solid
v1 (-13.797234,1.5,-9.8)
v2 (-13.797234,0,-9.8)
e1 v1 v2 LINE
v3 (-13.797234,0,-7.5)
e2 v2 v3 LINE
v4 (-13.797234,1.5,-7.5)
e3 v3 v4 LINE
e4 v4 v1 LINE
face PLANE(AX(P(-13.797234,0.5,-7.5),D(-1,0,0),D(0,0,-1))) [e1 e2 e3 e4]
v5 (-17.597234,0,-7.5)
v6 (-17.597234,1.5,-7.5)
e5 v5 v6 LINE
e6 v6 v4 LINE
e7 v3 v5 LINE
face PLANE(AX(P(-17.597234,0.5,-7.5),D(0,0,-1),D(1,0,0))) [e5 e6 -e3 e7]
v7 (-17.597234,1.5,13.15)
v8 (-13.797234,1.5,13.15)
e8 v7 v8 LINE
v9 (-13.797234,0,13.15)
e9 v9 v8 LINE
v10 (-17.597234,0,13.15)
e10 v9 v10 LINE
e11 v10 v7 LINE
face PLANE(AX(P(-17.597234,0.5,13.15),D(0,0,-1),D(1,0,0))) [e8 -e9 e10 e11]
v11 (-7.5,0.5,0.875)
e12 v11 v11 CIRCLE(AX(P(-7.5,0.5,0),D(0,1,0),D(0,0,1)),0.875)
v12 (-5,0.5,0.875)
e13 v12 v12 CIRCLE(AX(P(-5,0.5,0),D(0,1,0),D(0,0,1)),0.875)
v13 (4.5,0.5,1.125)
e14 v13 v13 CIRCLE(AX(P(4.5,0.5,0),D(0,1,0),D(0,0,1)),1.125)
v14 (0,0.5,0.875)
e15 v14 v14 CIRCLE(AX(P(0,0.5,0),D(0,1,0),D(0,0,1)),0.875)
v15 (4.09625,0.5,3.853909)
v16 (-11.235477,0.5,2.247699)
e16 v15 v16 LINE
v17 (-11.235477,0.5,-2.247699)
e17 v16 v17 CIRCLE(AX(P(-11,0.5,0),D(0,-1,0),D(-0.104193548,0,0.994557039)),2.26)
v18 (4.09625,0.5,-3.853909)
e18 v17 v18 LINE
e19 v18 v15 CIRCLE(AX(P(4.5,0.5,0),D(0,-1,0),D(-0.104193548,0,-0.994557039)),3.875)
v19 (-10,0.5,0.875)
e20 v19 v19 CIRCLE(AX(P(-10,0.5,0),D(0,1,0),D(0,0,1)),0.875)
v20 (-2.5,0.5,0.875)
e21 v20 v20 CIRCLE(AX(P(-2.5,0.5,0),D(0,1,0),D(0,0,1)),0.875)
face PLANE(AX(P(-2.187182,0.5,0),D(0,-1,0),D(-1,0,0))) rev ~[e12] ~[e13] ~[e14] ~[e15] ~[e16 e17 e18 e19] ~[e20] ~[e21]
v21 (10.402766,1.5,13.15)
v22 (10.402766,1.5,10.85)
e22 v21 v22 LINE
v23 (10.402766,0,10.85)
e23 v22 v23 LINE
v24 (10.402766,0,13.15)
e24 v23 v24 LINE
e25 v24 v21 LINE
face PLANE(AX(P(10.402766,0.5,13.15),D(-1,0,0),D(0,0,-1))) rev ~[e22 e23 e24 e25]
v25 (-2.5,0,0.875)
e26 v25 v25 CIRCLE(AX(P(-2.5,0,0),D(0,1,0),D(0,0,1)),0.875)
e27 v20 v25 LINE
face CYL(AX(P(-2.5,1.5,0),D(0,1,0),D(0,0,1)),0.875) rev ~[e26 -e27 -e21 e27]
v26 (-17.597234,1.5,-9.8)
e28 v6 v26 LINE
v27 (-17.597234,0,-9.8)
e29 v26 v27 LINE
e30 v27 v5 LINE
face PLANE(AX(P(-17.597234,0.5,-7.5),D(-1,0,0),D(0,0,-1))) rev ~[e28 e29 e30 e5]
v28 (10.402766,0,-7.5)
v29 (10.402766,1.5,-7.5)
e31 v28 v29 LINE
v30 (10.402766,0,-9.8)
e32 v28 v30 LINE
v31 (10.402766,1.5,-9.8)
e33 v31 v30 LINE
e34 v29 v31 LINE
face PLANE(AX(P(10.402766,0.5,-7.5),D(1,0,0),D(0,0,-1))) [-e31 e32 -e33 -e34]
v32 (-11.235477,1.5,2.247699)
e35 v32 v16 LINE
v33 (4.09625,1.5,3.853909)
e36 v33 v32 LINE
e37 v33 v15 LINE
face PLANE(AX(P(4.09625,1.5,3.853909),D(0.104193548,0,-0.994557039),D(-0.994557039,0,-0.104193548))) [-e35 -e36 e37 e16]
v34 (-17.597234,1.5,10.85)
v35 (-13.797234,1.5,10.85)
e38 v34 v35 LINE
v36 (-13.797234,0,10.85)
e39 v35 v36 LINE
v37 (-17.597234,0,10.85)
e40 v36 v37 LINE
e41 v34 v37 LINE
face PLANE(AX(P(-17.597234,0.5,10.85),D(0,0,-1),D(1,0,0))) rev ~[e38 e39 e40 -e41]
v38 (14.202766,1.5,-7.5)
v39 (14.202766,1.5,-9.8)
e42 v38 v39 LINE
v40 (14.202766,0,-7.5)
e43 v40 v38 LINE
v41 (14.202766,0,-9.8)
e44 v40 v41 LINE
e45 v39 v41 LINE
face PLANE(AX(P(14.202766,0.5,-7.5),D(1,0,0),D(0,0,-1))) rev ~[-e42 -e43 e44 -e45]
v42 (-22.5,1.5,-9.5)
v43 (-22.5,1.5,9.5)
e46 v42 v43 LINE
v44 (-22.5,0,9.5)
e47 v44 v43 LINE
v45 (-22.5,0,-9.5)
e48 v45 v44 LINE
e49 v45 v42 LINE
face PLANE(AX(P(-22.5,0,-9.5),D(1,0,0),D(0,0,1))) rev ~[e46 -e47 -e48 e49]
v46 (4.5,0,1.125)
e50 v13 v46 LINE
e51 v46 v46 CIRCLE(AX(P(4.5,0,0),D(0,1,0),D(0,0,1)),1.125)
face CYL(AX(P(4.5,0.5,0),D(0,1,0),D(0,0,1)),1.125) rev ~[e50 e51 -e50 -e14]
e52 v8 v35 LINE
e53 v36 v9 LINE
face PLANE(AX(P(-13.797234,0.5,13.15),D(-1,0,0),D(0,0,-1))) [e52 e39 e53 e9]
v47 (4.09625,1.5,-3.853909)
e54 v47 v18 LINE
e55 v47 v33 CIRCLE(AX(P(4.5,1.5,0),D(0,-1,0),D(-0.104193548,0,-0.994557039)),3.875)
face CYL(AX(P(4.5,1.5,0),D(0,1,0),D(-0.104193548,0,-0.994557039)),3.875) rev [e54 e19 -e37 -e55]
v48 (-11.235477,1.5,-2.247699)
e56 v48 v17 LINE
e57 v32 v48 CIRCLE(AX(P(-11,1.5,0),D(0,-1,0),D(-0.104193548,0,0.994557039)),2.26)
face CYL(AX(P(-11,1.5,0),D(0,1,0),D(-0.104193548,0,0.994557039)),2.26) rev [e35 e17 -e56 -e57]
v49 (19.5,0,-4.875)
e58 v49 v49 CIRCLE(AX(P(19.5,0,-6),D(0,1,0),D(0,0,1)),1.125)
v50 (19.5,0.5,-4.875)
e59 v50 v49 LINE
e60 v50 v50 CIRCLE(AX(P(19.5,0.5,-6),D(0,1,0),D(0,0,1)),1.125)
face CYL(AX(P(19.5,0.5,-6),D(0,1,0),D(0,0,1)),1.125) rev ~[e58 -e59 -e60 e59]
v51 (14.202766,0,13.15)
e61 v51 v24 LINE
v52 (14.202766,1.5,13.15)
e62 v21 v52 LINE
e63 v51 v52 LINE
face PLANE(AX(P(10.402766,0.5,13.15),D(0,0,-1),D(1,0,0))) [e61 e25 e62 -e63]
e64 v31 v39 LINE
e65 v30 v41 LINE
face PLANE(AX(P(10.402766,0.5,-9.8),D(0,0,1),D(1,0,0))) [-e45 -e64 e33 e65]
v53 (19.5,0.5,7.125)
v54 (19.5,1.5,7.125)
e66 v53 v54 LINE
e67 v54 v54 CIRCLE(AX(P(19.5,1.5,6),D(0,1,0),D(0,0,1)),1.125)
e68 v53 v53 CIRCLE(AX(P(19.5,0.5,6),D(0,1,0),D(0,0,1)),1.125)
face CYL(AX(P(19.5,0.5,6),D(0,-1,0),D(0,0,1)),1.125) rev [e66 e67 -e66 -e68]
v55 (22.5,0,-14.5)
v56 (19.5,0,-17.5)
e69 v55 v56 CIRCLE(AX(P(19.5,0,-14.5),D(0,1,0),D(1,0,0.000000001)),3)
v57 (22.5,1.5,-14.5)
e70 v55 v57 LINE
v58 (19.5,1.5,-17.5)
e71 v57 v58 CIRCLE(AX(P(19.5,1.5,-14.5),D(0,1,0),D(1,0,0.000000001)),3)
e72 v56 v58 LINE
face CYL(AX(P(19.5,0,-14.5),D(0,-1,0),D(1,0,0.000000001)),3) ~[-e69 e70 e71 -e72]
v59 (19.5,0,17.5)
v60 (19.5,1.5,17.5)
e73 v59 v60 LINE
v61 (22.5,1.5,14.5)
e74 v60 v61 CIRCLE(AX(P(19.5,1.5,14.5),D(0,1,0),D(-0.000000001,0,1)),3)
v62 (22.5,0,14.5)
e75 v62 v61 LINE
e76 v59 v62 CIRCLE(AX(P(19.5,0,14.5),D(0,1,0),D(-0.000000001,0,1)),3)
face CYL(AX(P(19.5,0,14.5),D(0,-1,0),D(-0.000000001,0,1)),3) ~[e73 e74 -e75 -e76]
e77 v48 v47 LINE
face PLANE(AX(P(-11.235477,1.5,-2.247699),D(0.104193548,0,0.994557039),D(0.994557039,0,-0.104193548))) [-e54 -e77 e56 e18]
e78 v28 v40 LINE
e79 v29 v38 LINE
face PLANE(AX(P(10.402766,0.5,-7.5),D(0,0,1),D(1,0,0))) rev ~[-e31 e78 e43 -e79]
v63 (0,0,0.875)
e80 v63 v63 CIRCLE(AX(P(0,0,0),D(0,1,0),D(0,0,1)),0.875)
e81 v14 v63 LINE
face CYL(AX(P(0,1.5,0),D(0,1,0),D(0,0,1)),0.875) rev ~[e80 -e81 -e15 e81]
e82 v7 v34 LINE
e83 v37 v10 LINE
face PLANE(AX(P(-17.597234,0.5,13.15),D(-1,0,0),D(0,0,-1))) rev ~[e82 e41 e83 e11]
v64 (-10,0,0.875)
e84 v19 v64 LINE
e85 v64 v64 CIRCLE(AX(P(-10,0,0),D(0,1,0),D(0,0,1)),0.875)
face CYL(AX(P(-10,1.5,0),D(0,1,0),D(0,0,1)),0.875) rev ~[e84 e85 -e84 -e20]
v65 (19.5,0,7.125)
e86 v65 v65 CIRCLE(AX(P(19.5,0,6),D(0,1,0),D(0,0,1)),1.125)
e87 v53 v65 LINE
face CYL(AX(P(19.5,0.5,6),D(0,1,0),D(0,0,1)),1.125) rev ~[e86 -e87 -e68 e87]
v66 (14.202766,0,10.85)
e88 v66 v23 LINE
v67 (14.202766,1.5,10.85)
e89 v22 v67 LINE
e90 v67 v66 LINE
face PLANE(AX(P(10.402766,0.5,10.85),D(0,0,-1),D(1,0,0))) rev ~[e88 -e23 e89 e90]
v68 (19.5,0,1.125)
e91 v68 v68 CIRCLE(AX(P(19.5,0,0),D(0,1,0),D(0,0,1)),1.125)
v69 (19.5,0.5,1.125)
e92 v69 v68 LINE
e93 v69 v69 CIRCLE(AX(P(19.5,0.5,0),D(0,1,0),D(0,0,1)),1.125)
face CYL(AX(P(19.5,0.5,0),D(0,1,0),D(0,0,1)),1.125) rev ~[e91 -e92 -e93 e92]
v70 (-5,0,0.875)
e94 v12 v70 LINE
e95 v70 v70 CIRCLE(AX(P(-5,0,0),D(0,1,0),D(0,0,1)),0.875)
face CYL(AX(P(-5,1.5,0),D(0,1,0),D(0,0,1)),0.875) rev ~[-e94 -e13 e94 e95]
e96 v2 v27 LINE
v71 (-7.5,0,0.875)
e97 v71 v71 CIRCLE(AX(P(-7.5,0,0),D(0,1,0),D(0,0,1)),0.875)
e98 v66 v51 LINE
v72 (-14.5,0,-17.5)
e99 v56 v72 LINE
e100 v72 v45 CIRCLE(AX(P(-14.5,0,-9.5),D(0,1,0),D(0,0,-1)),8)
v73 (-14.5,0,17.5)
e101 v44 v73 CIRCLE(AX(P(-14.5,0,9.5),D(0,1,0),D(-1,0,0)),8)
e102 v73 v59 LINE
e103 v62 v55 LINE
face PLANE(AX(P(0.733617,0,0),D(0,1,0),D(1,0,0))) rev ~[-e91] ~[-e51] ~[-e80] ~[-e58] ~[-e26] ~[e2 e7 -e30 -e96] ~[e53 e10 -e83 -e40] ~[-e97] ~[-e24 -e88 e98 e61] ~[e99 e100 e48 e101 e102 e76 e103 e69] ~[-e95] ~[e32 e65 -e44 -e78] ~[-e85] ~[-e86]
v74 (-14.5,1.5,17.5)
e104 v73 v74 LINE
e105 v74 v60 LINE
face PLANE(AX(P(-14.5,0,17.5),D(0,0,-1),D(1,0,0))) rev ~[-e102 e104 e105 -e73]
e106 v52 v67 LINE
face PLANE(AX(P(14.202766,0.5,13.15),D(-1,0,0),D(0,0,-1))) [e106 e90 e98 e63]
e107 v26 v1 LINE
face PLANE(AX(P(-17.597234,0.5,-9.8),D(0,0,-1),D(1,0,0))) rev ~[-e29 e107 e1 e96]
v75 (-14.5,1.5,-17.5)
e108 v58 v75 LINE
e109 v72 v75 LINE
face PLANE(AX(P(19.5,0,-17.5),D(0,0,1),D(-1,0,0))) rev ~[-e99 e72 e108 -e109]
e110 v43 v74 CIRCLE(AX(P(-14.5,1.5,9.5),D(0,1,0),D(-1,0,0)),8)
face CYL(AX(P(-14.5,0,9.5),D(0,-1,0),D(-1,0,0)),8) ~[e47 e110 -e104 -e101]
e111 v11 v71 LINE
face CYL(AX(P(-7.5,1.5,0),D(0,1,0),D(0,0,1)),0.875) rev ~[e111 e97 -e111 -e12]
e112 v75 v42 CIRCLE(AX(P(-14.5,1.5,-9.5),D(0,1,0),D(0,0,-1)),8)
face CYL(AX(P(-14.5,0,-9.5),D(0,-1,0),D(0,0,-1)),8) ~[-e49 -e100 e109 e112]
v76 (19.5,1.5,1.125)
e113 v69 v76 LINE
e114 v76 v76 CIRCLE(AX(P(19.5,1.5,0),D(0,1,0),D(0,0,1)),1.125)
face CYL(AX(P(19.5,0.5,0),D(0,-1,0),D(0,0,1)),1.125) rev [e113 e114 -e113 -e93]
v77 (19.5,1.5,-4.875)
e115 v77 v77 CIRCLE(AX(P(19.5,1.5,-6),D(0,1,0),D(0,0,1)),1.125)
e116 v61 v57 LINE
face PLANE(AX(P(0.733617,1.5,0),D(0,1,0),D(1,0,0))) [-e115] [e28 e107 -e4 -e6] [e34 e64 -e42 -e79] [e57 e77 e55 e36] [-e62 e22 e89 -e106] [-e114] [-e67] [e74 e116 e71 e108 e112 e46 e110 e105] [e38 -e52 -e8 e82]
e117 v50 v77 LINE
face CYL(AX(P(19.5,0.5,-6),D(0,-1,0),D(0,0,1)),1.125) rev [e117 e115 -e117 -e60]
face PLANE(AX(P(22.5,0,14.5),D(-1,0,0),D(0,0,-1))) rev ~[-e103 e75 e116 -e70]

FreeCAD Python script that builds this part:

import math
import FreeCAD as App
import Part
import Sketcher
Q = App.Units.Quantity


def add_polygon(sketch, points):
    """Adds a closed chain of lines whose ends are joined by coincident constraints."""
    first, n = sketch.GeometryCount, len(points)
    for a, b in zip(points, points[1:] + points[:1]):
        sketch.addGeometry(Part.LineSegment(App.Vector(*a, 0), App.Vector(*b, 0)), False)
    for i in range(n):
        sketch.addConstraint(Sketcher.Constraint("Coincident", first + i, 2, first + (i + 1) % n, 1))

doc = App.newDocument("Part")
params = doc.addObject("Spreadsheet::Sheet", "Params")
for row, (alias, value) in enumerate([
    ("sketch1_radius", "3 mm"),
    ("sketch1_radius2", "8 mm"),
    ("sketch1_width", "34 mm"),
    ("sketch1_height", "29 mm"),
    ("pad1_length", "1.5 mm"),
    ("sketch2_radius", "2.26 mm"),
    ("pocket1_length", "1 mm"),
    ("sketch3_diameter", "2.25 mm"),
    ("sketch3_width", "3.8 mm"),
    ("sketch3_height", "2.3 mm"),
    ("pocket2_length", "2 mm"),
    ("sketch4_diameter", "1.75 mm"),
    ("pocket3_length", "10 mm"),
], start=1):
    params.set(f"A{row}", alias)
    params.set(f"B{row}", "=" + value)
    params.setAlias(f"B{row}", alias)

body = doc.addObject("PartDesign::Body", "Body")

# Sketch on XZ plane
sketch1 = body.newObject("Sketcher::SketchObject", "Sketch")
sketch1.AttachmentSupport = (doc.getObject("XZ_Plane"), [""])
sketch1.MapMode = "FlatFace"
sketch1.addGeometry([
    Part.LineSegment(App.Vector(-14.5, 17.5, 0), App.Vector(19.5, 17.5, 0)),  # 0
    Part.ArcOfCircle(Part.Circle(App.Vector(19.5, 14.5, 0), App.Vector(0, 0, 1), 3), math.radians(0), math.radians(90)),  # 1
    Part.LineSegment(App.Vector(22.5, 14.5, 0), App.Vector(22.5, -14.5, 0)),  # 2
    Part.ArcOfCircle(Part.Circle(App.Vector(19.5, -14.5, 0), App.Vector(0, 0, 1), 3), math.radians(-90), math.radians(0)),  # 3
    Part.LineSegment(App.Vector(19.5, -17.5, 0), App.Vector(-14.5, -17.5, 0)),  # 4
    Part.ArcOfCircle(Part.Circle(App.Vector(-14.5, -9.5, 0), App.Vector(0, 0, 1), 8), math.radians(-180), math.radians(-90)),  # 5
    Part.LineSegment(App.Vector(-22.5, -9.5, 0), App.Vector(-22.5, 9.5, 0)),  # 6
    Part.ArcOfCircle(Part.Circle(App.Vector(-14.5, 9.5, 0), App.Vector(0, 0, 1), 8), math.radians(90), math.radians(180)),  # 7
], False)
sketch1.addConstraint([
    Sketcher.Constraint("Tangent", 0, 2, 1, 2),
    Sketcher.Constraint("Tangent", 1, 1, 2, 1),
    Sketcher.Constraint("Tangent", 2, 2, 3, 2),
    Sketcher.Constraint("Tangent", 3, 1, 4, 1),
    Sketcher.Constraint("Tangent", 4, 2, 5, 2),
    Sketcher.Constraint("Tangent", 5, 1, 6, 1),
    Sketcher.Constraint("Tangent", 6, 2, 7, 2),
    Sketcher.Constraint("Tangent", 7, 1, 0, 1),
    Sketcher.Constraint("Horizontal", 0),
    Sketcher.Constraint("Vertical", 2),
    Sketcher.Constraint("Horizontal", 4),
    Sketcher.Constraint("Vertical", 6),
    Sketcher.Constraint("Equal", 1, 3),
    Sketcher.Constraint("Equal", 5, 7),
    Sketcher.Constraint("Radius", 1, Q("3 mm")),
    Sketcher.Constraint("Radius", 5, Q("8 mm")),
    Sketcher.Constraint("DistanceX", 0, 1, 0, 2, Q("34 mm")),
    Sketcher.Constraint("DistanceY", 2, 2, 2, 1, Q("29 mm")),
    Sketcher.Constraint("DistanceX", -1, 1, 1, 3, Q("19.5 mm")),
    Sketcher.Constraint("DistanceY", -1, 1, 1, 3, Q("14.5 mm")),
])
sketch1.setExpression("Constraints[14]", "Params.sketch1_radius")
sketch1.setExpression("Constraints[15]", "Params.sketch1_radius2")
sketch1.setExpression("Constraints[16]", "Params.sketch1_width")
sketch1.setExpression("Constraints[17]", "Params.sketch1_height")
pad1 = body.newObject("PartDesign::Pad", "Pad")
pad1.Profile = sketch1
pad1.setExpression("Length", "Params.pad1_length")
pad1.Reversed = True

# Sketch on XZ plane
sketch2 = body.newObject("Sketcher::SketchObject", "Sketch001")
sketch2.AttachmentSupport = (doc.getObject("XZ_Plane"), [""])
sketch2.MapMode = "FlatFace"
sketch2.AttachmentOffset = App.Placement(App.Vector(0, 0, -1.5), App.Rotation())
sketch2.addGeometry([
    Part.LineSegment(App.Vector(4.09625, -3.853909, 0), App.Vector(-11.235477, -2.247699, 0)),
    Part.ArcOfCircle(Part.Circle(App.Vector(-11, 0, 0), App.Vector(0, 0, 1), 2.26), math.radians(95.980705), math.radians(264.019295)),
    Part.LineSegment(App.Vector(-11.235477, 2.247699, 0), App.Vector(4.09625, 3.853909, 0)),
    Part.ArcOfCircle(Part.Circle(App.Vector(4.5, 0, 0), App.Vector(0, 0, 1), 3.875), math.radians(-95.980705), math.radians(95.980705)),
], False)
sketch2.addConstraint([
    Sketcher.Constraint("Tangent", 0, 2, 1, 2),
    Sketcher.Constraint("Tangent", 1, 1, 2, 1),
    Sketcher.Constraint("Tangent", 2, 2, 3, 2),
    Sketcher.Constraint("Tangent", 3, 1, 0, 1),
    Sketcher.Constraint("Symmetric", 0, 2, 1, 1, -1),
    Sketcher.Constraint("Radius", 1, Q("2.26 mm")),
    Sketcher.Constraint("DistanceX", 1, 3, -1, 1, Q("11 mm")),
    Sketcher.Constraint("Radius", 3, Q("3.875 mm")),
    Sketcher.Constraint("DistanceX", -1, 1, 3, 3, Q("4.5 mm")),
])
sketch2.setExpression("Constraints[5]", "Params.sketch2_radius")
pocket1 = body.newObject("PartDesign::Pocket", "Pocket")
pocket1.Profile = sketch2
pocket1.setExpression("Length", "Params.pocket1_length")
pocket1.Reversed = True

# Sketch on XZ plane
sketch3 = body.newObject("Sketcher::SketchObject", "Sketch002")
sketch3.AttachmentSupport = (doc.getObject("XZ_Plane"), [""])
sketch3.MapMode = "FlatFace"
sketch3.AttachmentOffset = App.Placement(App.Vector(0, 0, -0.5), App.Rotation())
sketch3.addGeometry(Part.Circle(App.Vector(4.5, 0, 0), App.Vector(0, 0, 1), 1.125), False)  # 0
sketch3.addGeometry(Part.Circle(App.Vector(19.5, -6, 0), App.Vector(0, 0, 1), 1.125), False)  # 1
sketch3.addGeometry(Part.Circle(App.Vector(19.5, 6, 0), App.Vector(0, 0, 1), 1.125), False)  # 2
sketch3.addGeometry(Part.Circle(App.Vector(19.5, 0, 0), App.Vector(0, 0, 1), 1.125), False)  # 3
add_polygon(sketch3, [(-17.597234, -9.8), (-17.597234, -7.5), (-13.797234, -7.5), (-13.797234, -9.8)])  # lines 4-7
add_polygon(sketch3, [(-17.597234, 10.85), (-17.597234, 13.15), (-13.797234, 13.15), (-13.797234, 10.85)])  # lines 8-11
add_polygon(sketch3, [(10.402766, 10.85), (10.402766, 13.15), (14.202766, 13.15), (14.202766, 10.85)])  # lines 12-15
add_polygon(sketch3, [(10.402766, -9.8), (10.402766, -7.5), (14.202766, -7.5), (14.202766, -9.8)])  # lines 16-19
sketch3.addConstraint([
    Sketcher.Constraint("Vertical", 4),
    Sketcher.Constraint("Horizontal", 5),
    Sketcher.Constraint("Vertical", 6),
    Sketcher.Constraint("Horizontal", 7),
    Sketcher.Constraint("Vertical", 8),
    Sketcher.Constraint("Horizontal", 9),
    Sketcher.Constraint("Vertical", 10),
    Sketcher.Constraint("Horizontal", 11),
    Sketcher.Constraint("Vertical", 12),
    Sketcher.Constraint("Horizontal", 13),
    Sketcher.Constraint("Vertical", 14),
    Sketcher.Constraint("Horizontal", 15),
    Sketcher.Constraint("Vertical", 16),
    Sketcher.Constraint("Horizontal", 17),
    Sketcher.Constraint("Vertical", 18),
    Sketcher.Constraint("Horizontal", 19),
    Sketcher.Constraint("Equal", 0, 1),
    Sketcher.Constraint("Equal", 1, 2),
    Sketcher.Constraint("Equal", 2, 3),
    Sketcher.Constraint("Symmetric", 1, 3, 2, 3, -1),
    Sketcher.Constraint("PointOnObject", 0, 3, -1),
    Sketcher.Constraint("PointOnObject", 3, 3, -1),
    Sketcher.Constraint("Horizontal", 9, 2, 12, 2),
    Sketcher.Constraint("Horizontal", 11, 2, 14, 2),
    Sketcher.Constraint("Horizontal", 5, 2, 16, 2),
    Sketcher.Constraint("Horizontal", 7, 2, 18, 2),
    Sketcher.Constraint("Vertical", 2, 3, 3, 3),
    Sketcher.Constraint("Vertical", 7, 2, 8, 2),
    Sketcher.Constraint("Vertical", 6, 2, 9, 2),
    Sketcher.Constraint("Vertical", 15, 2, 16, 2),
    Sketcher.Constraint("Vertical", 14, 2, 17, 2),
    Sketcher.Constraint("Equal", 11, 13),
    Sketcher.Constraint("Equal", 6, 8),
    Sketcher.Constraint("Diameter", 0, Q("2.25 mm")),
    Sketcher.Constraint("DistanceX", 5, 1, 5, 2, Q("3.8 mm")),
    Sketcher.Constraint("DistanceY", 4, 1, 4, 2, Q("2.3 mm")),
    Sketcher.Constraint("DistanceY", 1, 3, -1, 1, Q("6 mm")),
    Sketcher.Constraint("DistanceX", 0, 3, 1, 3, Q("15 mm")),
    Sketcher.Constraint("DistanceX", -1, 1, 0, 3, Q("4.5 mm")),
    Sketcher.Constraint("DistanceY", 4, 2, -1, 1, Q("7.5 mm")),
    Sketcher.Constraint("DistanceX", 9, 2, 12, 2, Q("24.2 mm")),
    Sketcher.Constraint("DistanceY", -1, 1, 8, 2, Q("13.15 mm")),
    Sketcher.Constraint("DistanceX", 4, 2, -1, 1, Q("17.597234 mm")),
])
sketch3.setExpression("Constraints[49]", "Params.sketch3_diameter")
sketch3.setExpression("Constraints[50]", "Params.sketch3_width")
sketch3.setExpression("Constraints[51]", "Params.sketch3_height")
pocket2 = body.newObject("PartDesign::Pocket", "Pocket001")
pocket2.Profile = sketch3
pocket2.setExpression("Length", "Params.pocket2_length")
pocket2.Midplane = True

# Sketch on XZ plane
sketch4 = body.newObject("Sketcher::SketchObject", "Sketch003")
sketch4.AttachmentSupport = (doc.getObject("XZ_Plane"), [""])
sketch4.MapMode = "FlatFace"
sketch4.AttachmentOffset = App.Placement(App.Vector(0, 0, -1.5), App.Rotation())
sketch4.addGeometry([
    Part.Circle(App.Vector(0, 0, 0), App.Vector(0, 0, 1), 0.875),  # 0
    Part.Circle(App.Vector(-5, 0, 0), App.Vector(0, 0, 1), 0.875),  # 1
    Part.Circle(App.Vector(-2.5, 0, 0), App.Vector(0, 0, 1), 0.875),  # 2
    Part.Circle(App.Vector(-7.5, 0, 0), App.Vector(0, 0, 1), 0.875),  # 3
    Part.Circle(App.Vector(-10, 0, 0), App.Vector(0, 0, 1), 0.875),  # 4
], False)
sketch4.addConstraint([
    Sketcher.Constraint("Coincident", 0, 3, -1, 1),
    Sketcher.Constraint("Equal", 0, 1),
    Sketcher.Constraint("Equal", 1, 2),
    Sketcher.Constraint("Equal", 2, 3),
    Sketcher.Constraint("Equal", 3, 4),
    Sketcher.Constraint("PointOnObject", 1, 3, -1),
    Sketcher.Constraint("PointOnObject", 2, 3, -1),
    Sketcher.Constraint("PointOnObject", 3, 3, -1),
    Sketcher.Constraint("PointOnObject", 4, 3, -1),
    Sketcher.Constraint("Diameter", 0, Q("1.75 mm")),
    Sketcher.Constraint("DistanceX", 1, 3, -1, 1, Q("5 mm")),
    Sketcher.Constraint("DistanceX", 4, 3, -1, 1, Q("10 mm")),
    Sketcher.Constraint("DistanceX", 3, 3, 2, 3, Q("5 mm")),
    Sketcher.Constraint("DistanceX", 2, 3, -1, 1, Q("2.5 mm")),
])
sketch4.setExpression("Constraints[9]", "Params.sketch4_diameter")
pocket3 = body.newObject("PartDesign::Pocket", "Pocket002")
pocket3.Profile = sketch4
pocket3.setExpression("Length", "Params.pocket3_length")
pocket3.Reversed = True

doc.recompute()
